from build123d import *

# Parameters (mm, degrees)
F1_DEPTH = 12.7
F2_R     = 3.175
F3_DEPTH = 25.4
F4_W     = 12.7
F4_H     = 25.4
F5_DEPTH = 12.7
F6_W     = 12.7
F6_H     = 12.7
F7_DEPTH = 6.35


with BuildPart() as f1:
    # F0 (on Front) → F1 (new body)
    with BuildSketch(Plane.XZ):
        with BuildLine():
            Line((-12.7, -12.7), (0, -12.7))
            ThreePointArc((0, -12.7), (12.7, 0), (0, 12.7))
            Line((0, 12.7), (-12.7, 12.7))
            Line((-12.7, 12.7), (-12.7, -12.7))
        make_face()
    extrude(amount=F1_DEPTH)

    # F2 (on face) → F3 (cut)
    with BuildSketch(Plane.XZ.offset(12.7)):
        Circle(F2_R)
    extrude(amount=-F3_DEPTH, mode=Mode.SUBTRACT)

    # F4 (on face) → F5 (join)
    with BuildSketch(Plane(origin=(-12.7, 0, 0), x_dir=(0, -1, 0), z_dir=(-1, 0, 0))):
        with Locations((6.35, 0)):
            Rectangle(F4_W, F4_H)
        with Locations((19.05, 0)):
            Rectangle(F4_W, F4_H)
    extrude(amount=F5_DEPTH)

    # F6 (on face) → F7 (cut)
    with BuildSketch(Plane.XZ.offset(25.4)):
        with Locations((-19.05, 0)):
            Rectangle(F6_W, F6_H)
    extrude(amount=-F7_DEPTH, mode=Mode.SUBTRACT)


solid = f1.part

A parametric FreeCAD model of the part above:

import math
import FreeCAD as App
import Part
import Sketcher
Q = App.Units.Quantity


def add_polygon(sketch, points):
    """Adds a closed chain of lines whose ends are joined by coincident constraints."""
    first, n = sketch.GeometryCount, len(points)
    for a, b in zip(points, points[1:] + points[:1]):
        sketch.addGeometry(Part.LineSegment(App.Vector(*a, 0), App.Vector(*b, 0)), False)
    for i in range(n):
        sketch.addConstraint(Sketcher.Constraint("Coincident", first + i, 2, first + (i + 1) % n, 1))

doc = App.newDocument("Part")
body = doc.addObject("PartDesign::Body", "Body")

sketch1 = doc.addObject("Sketcher::SketchObject", "Sketch")
body.addObject(sketch1)
sketch1.AttachmentSupport = (doc.XZ_Plane, [""])
sketch1.MapMode = "FlatFace"
sketch1.addGeometry([
    Part.LineSegment(App.Vector(-12.7, -12.7, 0), App.Vector(0, -12.7, 0)),
    Part.ArcOfCircle(Part.Circle(App.Vector(0, 0, 0), App.Vector(0, 0, 1), 12.7), math.radians(-90), math.radians(90)),
    Part.LineSegment(App.Vector(0, 12.7, 0), App.Vector(-12.7, 12.7, 0)),
    Part.LineSegment(App.Vector(-12.7, 12.7, 0), App.Vector(-12.7, -12.7, 0)),
], False)
sketch1.addConstraint([
    Sketcher.Constraint("Tangent", 0, 2, 1, 1),
    Sketcher.Constraint("Tangent", 1, 2, 2, 1),
    Sketcher.Constraint("Coincident", 2, 2, 3, 1),
    Sketcher.Constraint("Coincident", 3, 2, 0, 1),
    Sketcher.Constraint("Horizontal", 0),
    Sketcher.Constraint("Horizontal", 2),
    Sketcher.Constraint("Vertical", 3),
    Sketcher.Constraint("Coincident", 1, 3, -1, 1),
    Sketcher.Constraint("Radius", 1, Q("0.5 in")),
    Sketcher.Constraint("DistanceX", 0, 1, 0, 2, Q("0.5 in")),
])
pad1 = doc.addObject("PartDesign::Pad", "Pad")
body.addObject(pad1)
pad1.Profile = sketch1
pad1.Length = Q("0.5 in")

sketch2 = doc.addObject("Sketcher::SketchObject", "Sketch001")
body.addObject(sketch2)
sketch2.AttachmentSupport = (doc.XZ_Plane, [""])
sketch2.MapMode = "FlatFace"
sketch2.AttachmentOffset = App.Placement(App.Vector(0, 0, 0.5 * 25.4), App.Rotation())
sketch2.addGeometry(Part.Circle(App.Vector(0, 0, 0), App.Vector(0, 0, 1), 3.175), False)
sketch2.addConstraint([
    Sketcher.Constraint("Coincident", 0, 3, -1, 1),
    Sketcher.Constraint("Diameter", 0, Q("0.25 in")),
])
pocket1 = doc.addObject("PartDesign::Pocket", "Pocket")
body.addObject(pocket1)
pocket1.Profile = sketch2
pocket1.Length = Q("1 in")

sketch3 = doc.addObject("Sketcher::SketchObject", "Sketch002")
body.addObject(sketch3)
sketch3.AttachmentSupport = (doc.YZ_Plane, [""])
sketch3.MapMode = "FlatFace"
sketch3.AttachmentOffset = App.Placement(App.Vector(0, 0, -0.5 * 25.4), App.Rotation())
add_polygon(sketch3, [(0, 12.7), (0, -12.7), (-25.4, -12.7), (-25.4, 12.7)])
sketch3.addConstraint([
    Sketcher.Constraint("Vertical", 0),
    Sketcher.Constraint("Horizontal", 1),
    Sketcher.Constraint("Vertical", 2),
    Sketcher.Constraint("Horizontal", 3),
    Sketcher.Constraint("Symmetric", 0, 2, 3, 2, -1, 1),
    Sketcher.Constraint("Equal", 3, 0),
    Sketcher.Constraint("DistanceX", 1, 2, 1, 1, Q("1 in")),
])
pad2 = doc.addObject("PartDesign::Pad", "Pad001")
body.addObject(pad2)
pad2.Profile = sketch3
pad2.Length = Q("0.5 in")
pad2.Reversed = True

sketch4 = doc.addObject("Sketcher::SketchObject", "Sketch003")
body.addObject(sketch4)
sketch4.AttachmentSupport = (doc.XZ_Plane, [""])
sketch4.MapMode = "FlatFace"
sketch4.AttachmentOffset = App.Placement(App.Vector(0, 0, 1 * 25.4), App.Rotation())
add_polygon(sketch4, [(-25.4, 6.35), (-25.4, -6.35), (-12.7, -6.35), (-12.7, 6.35)])
sketch4.addConstraint([
    Sketcher.Constraint("Vertical", 0),
    Sketcher.Constraint("Horizontal", 1),
    Sketcher.Constraint("Vertical", 2),
    Sketcher.Constraint("Horizontal", 3),
    Sketcher.Constraint("Equal", 3, 0),
    Sketcher.Constraint("DistanceX", 1, 1, 1, 2, Q("0.5 in")),
    Sketcher.Constraint("DistanceX", 0, 2, -1, 1, Q("1 in")),
    Sketcher.Constraint("DistanceY", 0, 2, -1, 1, Q("0.25 in")),
])
pocket2 = doc.addObject("PartDesign::Pocket", "Pocket001")
body.addObject(pocket2)
pocket2.Profile = sketch4
pocket2.Length = Q("0.25 in")

doc.recompute()
